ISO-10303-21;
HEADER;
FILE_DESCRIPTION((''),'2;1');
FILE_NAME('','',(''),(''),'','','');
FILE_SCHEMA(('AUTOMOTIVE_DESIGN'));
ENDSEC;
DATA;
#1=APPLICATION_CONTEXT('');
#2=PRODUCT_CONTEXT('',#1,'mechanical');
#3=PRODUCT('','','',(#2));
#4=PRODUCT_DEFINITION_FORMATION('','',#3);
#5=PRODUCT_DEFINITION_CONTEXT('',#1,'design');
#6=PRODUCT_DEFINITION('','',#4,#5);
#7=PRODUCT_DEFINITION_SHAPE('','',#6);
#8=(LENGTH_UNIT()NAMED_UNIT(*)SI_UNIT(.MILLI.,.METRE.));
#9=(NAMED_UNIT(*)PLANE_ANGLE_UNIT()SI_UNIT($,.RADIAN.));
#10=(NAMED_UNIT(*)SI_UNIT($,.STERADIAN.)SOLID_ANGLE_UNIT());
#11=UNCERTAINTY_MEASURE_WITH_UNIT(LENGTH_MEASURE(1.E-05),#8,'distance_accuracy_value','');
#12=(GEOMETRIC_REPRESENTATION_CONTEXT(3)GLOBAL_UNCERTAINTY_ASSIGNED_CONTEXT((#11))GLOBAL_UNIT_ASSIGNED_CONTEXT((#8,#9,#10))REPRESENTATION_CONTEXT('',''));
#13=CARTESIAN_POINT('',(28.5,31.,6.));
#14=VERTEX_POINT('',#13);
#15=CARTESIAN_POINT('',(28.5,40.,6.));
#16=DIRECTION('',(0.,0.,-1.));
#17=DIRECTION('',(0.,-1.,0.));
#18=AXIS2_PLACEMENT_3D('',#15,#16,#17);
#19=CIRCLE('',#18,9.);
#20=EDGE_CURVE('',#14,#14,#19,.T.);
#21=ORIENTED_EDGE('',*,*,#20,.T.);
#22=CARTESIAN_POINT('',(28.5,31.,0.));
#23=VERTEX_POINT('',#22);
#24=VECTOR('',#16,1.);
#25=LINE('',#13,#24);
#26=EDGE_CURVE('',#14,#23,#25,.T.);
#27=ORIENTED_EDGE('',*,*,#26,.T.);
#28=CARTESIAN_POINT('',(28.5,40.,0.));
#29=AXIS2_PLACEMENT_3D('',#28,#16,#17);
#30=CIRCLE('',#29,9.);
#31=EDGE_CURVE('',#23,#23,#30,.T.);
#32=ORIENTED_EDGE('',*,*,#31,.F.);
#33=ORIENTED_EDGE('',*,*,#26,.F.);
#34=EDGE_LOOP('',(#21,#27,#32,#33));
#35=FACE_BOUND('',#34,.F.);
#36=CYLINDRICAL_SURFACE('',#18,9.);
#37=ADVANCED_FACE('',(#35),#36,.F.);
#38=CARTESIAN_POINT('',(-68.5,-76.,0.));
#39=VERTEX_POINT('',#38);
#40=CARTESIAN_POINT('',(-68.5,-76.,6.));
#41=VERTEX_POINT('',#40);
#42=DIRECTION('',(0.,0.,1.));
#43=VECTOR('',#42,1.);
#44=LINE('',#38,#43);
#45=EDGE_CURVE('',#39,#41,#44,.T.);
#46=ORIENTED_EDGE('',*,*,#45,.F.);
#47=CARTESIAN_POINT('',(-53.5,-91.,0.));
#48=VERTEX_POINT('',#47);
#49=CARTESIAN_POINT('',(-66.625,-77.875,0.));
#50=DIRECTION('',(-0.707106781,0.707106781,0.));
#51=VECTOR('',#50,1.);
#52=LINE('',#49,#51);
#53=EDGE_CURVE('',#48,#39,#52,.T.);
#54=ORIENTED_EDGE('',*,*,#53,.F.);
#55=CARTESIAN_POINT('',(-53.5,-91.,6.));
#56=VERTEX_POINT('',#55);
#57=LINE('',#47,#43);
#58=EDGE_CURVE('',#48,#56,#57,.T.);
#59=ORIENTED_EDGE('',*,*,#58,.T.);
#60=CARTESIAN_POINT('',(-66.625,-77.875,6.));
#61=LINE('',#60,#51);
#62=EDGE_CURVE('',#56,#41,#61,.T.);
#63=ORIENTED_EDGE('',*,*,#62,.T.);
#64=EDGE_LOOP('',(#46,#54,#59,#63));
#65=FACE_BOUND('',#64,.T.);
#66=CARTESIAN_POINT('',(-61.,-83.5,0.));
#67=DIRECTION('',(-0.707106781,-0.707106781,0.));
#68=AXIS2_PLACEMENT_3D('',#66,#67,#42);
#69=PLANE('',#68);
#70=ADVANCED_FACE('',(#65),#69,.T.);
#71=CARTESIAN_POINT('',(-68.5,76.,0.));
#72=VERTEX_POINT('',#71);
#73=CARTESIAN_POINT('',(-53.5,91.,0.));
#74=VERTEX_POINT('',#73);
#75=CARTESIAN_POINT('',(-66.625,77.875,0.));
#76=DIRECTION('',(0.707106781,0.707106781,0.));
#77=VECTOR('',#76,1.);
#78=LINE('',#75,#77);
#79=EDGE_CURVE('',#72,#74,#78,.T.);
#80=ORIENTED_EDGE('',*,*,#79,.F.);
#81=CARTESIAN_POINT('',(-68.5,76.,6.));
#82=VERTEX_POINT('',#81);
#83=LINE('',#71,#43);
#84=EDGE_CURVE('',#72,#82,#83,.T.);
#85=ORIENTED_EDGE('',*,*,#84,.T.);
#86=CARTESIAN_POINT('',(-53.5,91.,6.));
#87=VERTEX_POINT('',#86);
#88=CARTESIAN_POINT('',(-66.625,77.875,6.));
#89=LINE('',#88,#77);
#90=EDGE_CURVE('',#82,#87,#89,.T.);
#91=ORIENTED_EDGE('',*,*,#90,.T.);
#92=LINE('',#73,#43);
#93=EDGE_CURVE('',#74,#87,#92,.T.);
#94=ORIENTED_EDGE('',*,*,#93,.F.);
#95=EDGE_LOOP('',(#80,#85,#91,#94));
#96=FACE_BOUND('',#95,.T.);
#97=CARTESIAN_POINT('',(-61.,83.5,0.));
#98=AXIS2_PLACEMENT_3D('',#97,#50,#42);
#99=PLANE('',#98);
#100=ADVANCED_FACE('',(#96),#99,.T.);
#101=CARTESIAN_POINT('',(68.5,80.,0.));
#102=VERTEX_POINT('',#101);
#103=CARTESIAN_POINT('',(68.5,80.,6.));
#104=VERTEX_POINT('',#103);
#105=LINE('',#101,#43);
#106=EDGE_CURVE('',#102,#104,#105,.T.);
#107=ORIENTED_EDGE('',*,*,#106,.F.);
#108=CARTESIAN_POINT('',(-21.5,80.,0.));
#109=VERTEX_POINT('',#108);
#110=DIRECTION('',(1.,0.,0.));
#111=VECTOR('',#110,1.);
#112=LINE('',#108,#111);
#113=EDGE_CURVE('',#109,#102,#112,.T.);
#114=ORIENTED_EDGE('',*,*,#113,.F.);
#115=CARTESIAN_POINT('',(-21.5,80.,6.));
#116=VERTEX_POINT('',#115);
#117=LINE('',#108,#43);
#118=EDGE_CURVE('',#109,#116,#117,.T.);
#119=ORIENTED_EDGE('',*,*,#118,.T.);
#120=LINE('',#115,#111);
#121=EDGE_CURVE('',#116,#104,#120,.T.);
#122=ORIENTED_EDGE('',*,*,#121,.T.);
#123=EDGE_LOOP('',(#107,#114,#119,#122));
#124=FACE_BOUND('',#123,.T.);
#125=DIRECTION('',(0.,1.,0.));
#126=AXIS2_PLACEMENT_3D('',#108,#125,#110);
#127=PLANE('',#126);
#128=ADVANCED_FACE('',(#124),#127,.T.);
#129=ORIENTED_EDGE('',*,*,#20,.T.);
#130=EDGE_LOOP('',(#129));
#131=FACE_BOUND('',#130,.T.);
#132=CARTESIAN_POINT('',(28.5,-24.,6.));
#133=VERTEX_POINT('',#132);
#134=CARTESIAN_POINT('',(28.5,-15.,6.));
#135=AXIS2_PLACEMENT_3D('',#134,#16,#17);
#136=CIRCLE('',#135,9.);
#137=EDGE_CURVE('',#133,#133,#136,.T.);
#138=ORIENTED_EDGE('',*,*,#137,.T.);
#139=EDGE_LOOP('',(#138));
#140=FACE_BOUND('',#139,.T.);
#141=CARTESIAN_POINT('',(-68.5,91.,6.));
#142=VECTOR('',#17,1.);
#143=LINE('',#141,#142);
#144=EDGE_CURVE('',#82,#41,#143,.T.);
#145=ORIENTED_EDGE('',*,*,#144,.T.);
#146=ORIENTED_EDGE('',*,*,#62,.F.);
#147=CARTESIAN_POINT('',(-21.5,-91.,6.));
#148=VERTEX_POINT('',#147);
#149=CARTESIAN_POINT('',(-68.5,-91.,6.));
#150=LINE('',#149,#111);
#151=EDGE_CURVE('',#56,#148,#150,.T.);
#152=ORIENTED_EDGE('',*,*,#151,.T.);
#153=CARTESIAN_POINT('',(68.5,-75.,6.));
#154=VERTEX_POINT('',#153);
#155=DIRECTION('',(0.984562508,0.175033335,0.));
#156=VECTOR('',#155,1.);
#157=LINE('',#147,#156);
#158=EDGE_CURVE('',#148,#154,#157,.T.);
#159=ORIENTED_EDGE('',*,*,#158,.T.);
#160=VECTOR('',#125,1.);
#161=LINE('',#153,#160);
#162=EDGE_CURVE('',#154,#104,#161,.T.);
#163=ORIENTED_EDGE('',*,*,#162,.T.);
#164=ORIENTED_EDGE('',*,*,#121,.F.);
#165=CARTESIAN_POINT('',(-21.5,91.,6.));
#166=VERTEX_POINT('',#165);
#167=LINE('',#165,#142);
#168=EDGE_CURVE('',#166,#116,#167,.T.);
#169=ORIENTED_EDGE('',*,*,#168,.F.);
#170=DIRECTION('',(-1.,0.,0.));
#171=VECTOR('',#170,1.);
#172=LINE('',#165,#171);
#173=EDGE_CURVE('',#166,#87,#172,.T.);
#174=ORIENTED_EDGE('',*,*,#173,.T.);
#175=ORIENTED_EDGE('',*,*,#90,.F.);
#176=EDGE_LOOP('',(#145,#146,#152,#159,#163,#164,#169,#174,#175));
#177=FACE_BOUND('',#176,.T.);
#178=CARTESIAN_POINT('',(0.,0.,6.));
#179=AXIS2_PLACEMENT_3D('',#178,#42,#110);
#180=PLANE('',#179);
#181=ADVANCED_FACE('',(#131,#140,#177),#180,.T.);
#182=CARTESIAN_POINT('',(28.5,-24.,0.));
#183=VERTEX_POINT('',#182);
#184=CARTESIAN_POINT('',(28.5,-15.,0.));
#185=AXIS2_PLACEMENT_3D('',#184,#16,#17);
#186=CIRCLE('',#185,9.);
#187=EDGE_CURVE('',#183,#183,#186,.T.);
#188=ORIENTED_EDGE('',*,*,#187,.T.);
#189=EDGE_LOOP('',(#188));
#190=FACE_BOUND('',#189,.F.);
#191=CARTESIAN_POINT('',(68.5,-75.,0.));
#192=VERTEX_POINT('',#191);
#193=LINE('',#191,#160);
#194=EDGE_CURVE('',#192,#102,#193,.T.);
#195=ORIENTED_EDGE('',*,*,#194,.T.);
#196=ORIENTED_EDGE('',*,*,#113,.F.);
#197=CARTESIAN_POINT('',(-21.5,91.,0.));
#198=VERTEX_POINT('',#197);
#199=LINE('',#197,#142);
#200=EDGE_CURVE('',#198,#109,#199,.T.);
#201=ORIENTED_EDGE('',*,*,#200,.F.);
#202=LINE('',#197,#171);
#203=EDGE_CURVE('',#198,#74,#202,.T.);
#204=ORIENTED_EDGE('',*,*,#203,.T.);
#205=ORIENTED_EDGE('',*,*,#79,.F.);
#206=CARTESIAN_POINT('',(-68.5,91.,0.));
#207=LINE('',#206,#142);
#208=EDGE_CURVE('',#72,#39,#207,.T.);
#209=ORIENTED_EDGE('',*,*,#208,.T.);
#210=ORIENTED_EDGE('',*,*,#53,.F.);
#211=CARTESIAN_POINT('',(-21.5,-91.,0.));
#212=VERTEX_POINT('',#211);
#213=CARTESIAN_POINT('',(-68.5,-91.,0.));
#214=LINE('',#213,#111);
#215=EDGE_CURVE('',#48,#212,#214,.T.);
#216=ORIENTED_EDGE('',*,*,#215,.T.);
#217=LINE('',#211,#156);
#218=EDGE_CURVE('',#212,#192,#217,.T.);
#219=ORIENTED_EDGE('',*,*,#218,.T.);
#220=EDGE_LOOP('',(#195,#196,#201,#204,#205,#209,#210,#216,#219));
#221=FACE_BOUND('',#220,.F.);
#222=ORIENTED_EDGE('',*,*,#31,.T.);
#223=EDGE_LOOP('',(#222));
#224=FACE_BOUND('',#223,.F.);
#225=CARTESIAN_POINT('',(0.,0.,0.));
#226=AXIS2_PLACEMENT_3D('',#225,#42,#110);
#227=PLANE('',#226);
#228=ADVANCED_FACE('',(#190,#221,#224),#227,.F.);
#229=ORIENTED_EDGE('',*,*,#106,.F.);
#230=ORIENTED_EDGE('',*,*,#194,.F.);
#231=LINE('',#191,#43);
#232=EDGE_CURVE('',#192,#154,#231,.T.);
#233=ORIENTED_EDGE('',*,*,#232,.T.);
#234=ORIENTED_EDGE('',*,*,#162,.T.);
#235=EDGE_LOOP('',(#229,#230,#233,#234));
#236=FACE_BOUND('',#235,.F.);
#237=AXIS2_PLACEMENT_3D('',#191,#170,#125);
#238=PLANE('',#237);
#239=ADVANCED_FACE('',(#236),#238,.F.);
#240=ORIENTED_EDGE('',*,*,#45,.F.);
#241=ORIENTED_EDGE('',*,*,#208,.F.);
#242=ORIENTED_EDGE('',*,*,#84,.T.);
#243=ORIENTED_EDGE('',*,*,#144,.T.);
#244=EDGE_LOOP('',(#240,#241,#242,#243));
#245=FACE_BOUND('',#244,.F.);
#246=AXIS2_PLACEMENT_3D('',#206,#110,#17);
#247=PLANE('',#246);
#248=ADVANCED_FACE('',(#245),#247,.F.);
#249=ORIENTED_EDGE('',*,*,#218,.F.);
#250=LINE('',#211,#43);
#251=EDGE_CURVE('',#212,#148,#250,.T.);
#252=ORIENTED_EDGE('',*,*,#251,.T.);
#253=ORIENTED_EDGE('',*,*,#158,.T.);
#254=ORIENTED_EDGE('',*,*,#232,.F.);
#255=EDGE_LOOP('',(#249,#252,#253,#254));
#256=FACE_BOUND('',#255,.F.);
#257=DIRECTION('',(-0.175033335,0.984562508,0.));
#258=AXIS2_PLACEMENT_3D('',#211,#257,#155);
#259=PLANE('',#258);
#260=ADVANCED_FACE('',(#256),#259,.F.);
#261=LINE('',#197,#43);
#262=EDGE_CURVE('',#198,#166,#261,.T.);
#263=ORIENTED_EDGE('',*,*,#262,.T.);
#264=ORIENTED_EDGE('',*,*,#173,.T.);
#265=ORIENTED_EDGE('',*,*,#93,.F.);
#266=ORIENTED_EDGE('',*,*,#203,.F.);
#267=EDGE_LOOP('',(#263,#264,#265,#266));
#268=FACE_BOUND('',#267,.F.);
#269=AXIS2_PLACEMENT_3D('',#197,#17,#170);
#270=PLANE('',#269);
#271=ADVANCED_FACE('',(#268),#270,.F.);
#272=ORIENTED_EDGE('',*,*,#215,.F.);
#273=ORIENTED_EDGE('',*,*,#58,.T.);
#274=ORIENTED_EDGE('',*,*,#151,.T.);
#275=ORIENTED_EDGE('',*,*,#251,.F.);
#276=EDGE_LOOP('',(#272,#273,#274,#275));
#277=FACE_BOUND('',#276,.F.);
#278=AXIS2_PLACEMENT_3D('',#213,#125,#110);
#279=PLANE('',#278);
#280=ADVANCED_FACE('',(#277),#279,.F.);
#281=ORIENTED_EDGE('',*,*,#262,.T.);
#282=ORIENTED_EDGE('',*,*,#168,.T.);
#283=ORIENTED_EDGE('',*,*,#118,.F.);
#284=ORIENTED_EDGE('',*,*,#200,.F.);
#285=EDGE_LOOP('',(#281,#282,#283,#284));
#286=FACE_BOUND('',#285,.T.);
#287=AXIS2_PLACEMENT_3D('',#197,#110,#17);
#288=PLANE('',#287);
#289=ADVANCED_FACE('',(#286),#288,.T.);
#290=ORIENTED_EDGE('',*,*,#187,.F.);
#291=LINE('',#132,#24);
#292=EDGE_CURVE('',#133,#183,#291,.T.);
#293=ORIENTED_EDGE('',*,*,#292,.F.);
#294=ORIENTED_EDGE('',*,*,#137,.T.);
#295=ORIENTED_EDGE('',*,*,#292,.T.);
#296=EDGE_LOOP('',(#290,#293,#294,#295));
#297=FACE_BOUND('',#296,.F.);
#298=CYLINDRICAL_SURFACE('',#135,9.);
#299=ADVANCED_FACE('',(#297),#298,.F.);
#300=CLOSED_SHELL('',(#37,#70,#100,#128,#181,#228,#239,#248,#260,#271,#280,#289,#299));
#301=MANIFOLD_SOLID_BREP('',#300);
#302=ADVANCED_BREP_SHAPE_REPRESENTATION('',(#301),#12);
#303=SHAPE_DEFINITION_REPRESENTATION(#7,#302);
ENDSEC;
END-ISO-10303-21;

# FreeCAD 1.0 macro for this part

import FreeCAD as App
import Part
import Sketcher

V = App.Vector


def edges_at(feature, points):
    """Names of the edges that pass closest to the given points."""
    edges = feature.Shape.Edges
    near = lambda p: min(range(len(edges)), key=lambda i: edges[i].distToShape(Part.Vertex(*p))[0])
    return sorted({f"Edge{near(p) + 1}" for p in points})


def add_polygon(sketch, points):
    """Adds a closed chain of lines whose ends are joined by coincident constraints."""
    first, n = sketch.GeometryCount, len(points)
    for a, b in zip(points, points[1:] + points[:1]):
        sketch.addGeometry(Part.LineSegment(App.Vector(*a, 0), App.Vector(*b, 0)), False)
    for i in range(n):
        sketch.addConstraint(Sketcher.Constraint("Coincident", first + i, 2, first + (i + 1) % n, 1))

doc = App.newDocument("Part")
body = doc.addObject("PartDesign::Body", "Body")

sketch1 = doc.addObject("Sketcher::SketchObject", "Sketch")
body.addObject(sketch1)
sketch1.AttachmentSupport = (doc.XY_Plane, [""])
sketch1.MapMode = "FlatFace"
add_polygon(sketch1, [(-22, 80), (-22, 91), (-68, 91), (-68, -91), (-22, -91), (68, -75), (68, 80)])
sketch1.addConstraint(Sketcher.Constraint("Vertical", 0))
sketch1.addConstraint(Sketcher.Constraint("Horizontal", 1))
sketch1.addConstraint(Sketcher.Constraint("Vertical", 2))
sketch1.addConstraint(Sketcher.Constraint("Horizontal", 3))
sketch1.addConstraint(Sketcher.Constraint("Vertical", 5))
sketch1.addConstraint(Sketcher.Constraint("Horizontal", 6))
sketch1.addConstraint(Sketcher.Constraint("Symmetric", 0, 2, 3, 2, -1))
sketch1.addConstraint(Sketcher.Constraint("DistanceX", 1, 2, 1, 1, 47.0))
sketch1.addConstraint(Sketcher.Constraint("DistanceY", 2, 2, 2, 1, 182.0))
sketch1.addConstraint(Sketcher.Constraint("DistanceX", 6, 2, 6, 1, 90.0))
sketch1.addConstraint(Sketcher.Constraint("DistanceY", 0, 1, 0, 2, 11.0))
sketch1.addConstraint(Sketcher.Constraint("DistanceY", 5, 1, 5, 2, 155.0))
sketch1.addConstraint(Sketcher.Constraint("DistanceX", 0, 2, -1, 1, 21.5))
pad1 = doc.addObject("PartDesign::Pad", "Pad")
body.addObject(pad1)
pad1.Profile = sketch1
pad1.Length = 6
doc.recompute()

chamfer = doc.addObject("PartDesign::Chamfer", "Chamfer")
body.addObject(chamfer)
chamfer.Base = (pad1, edges_at(pad1, [(-68.5, -91, 3), (-68.5, 91, 3)]))
chamfer.Size = 15

sketch2 = doc.addObject("Sketcher::SketchObject", "Sketch001")
body.addObject(sketch2)
sketch2.AttachmentSupport = (doc.XY_Plane, [""])
sketch2.MapMode = "FlatFace"
sketch2.AttachmentOffset = App.Placement(V(0, 0, 6), App.Rotation())
sketch2.addGeometry(Part.Circle(V(28, 40, 0), V(0, 0, 1), 9), False)
sketch2.addGeometry(Part.Circle(V(28, -15, 0), V(0, 0, 1), 9), False)
sketch2.addConstraint(Sketcher.Constraint("Equal", 0, 1))
sketch2.addConstraint(Sketcher.Constraint("Vertical", 0, 3, 1, 3))
sketch2.addConstraint(Sketcher.Constraint("Diameter", 0, 18.0))
sketch2.addConstraint(Sketcher.Constraint("DistanceY", -1, 1, 0, 3, 40.0))
sketch2.addConstraint(Sketcher.Constraint("DistanceY", 1, 3, -1, 1, 15.0))
sketch2.addConstraint(Sketcher.Constraint("DistanceX", -1, 1, 0, 3, 28.5))
doc.recompute()
hole = doc.addObject("PartDesign::Hole", "Hole")
body.addObject(hole)
hole.Profile = sketch2
hole.ThreadType = "None"
hole.Diameter = 18
hole.DepthType = "ThroughAll"

doc.recompute()
